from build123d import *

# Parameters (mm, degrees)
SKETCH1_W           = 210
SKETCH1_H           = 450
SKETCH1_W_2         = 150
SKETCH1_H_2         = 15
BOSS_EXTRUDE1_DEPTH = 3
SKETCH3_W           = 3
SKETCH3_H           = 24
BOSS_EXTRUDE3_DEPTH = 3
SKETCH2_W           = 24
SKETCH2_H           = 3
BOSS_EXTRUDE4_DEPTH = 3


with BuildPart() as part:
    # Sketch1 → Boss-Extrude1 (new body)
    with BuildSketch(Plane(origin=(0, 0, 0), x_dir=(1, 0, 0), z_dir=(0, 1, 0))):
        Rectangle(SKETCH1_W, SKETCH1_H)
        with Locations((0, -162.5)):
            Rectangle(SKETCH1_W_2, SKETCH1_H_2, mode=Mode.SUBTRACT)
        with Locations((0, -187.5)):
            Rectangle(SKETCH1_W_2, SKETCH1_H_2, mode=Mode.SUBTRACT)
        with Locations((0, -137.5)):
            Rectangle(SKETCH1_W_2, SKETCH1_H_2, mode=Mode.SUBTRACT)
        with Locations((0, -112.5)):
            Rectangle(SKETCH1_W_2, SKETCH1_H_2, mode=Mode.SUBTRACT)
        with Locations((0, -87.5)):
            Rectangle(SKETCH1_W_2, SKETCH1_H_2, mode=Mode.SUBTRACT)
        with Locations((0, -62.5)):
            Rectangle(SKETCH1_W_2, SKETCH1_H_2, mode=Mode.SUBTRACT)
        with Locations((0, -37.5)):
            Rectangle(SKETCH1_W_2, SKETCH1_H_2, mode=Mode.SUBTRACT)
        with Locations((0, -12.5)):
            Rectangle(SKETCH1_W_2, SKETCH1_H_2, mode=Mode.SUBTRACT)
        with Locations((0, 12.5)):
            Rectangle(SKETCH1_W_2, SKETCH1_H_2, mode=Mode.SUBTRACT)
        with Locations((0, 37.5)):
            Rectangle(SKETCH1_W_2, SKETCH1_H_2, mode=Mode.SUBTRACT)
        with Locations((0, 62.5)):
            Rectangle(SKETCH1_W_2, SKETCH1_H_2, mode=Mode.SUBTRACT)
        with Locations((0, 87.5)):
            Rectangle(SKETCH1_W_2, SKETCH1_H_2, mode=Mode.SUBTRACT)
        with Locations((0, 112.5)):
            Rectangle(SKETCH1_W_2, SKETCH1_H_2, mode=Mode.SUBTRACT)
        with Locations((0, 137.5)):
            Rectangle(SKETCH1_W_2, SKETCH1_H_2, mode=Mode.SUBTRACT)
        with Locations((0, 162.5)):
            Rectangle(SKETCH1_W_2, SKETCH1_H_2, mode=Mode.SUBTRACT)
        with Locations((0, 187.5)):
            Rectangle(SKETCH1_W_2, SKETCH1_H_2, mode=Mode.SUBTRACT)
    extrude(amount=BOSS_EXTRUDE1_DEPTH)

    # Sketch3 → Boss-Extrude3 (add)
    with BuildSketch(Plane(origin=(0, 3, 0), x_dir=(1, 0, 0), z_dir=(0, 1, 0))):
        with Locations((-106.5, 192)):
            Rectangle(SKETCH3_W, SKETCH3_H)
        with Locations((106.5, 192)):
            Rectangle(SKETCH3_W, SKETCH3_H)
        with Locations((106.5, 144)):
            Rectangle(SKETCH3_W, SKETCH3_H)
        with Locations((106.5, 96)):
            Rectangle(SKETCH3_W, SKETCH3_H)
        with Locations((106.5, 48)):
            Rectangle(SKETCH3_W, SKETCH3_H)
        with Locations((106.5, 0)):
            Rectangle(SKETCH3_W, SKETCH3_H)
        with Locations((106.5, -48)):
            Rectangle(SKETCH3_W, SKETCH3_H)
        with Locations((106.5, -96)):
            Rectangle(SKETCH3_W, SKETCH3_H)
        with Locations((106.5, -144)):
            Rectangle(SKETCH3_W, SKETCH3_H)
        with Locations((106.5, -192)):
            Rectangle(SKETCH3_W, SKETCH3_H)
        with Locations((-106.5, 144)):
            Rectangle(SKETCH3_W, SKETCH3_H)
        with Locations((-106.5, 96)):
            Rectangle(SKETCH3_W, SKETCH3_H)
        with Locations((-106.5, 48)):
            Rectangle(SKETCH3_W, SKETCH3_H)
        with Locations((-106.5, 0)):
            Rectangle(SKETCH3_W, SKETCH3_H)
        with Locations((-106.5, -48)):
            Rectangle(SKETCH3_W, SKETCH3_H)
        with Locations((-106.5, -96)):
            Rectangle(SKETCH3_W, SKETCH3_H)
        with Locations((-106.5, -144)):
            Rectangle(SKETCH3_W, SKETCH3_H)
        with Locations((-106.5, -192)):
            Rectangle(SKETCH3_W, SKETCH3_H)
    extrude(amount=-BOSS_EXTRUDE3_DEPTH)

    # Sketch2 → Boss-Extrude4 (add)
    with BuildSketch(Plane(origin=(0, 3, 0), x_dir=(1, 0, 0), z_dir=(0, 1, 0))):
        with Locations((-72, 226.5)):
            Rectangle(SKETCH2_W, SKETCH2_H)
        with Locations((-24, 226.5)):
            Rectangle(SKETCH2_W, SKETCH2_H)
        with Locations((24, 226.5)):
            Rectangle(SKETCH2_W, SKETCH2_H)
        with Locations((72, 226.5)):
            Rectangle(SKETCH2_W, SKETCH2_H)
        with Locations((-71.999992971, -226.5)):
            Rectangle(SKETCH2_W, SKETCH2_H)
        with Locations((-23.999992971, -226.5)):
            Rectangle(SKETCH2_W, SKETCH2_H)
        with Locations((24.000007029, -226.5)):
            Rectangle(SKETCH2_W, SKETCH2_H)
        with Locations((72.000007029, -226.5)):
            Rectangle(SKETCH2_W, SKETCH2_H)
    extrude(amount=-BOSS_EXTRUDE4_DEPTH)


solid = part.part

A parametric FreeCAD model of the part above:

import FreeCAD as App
import Part
import Sketcher
Q = App.Units.Quantity


def add_polygon(sketch, points):
    """Adds a closed chain of lines whose ends are joined by coincident constraints."""
    first, n = sketch.GeometryCount, len(points)
    for a, b in zip(points, points[1:] + points[:1]):
        sketch.addGeometry(Part.LineSegment(App.Vector(*a, 0), App.Vector(*b, 0)), False)
    for i in range(n):
        sketch.addConstraint(Sketcher.Constraint("Coincident", first + i, 2, first + (i + 1) % n, 1))

doc = App.newDocument("Part")
body = doc.addObject("PartDesign::Body", "Body")

# Sketch on XZ plane
sketch1 = body.newObject("Sketcher::SketchObject", "Sketch")
sketch1.AttachmentSupport = (doc.getObject("XZ_Plane"), [""])
sketch1.MapMode = "FlatFace"
add_polygon(sketch1, [(-105, -225), (-105, 225), (105, 225), (105, -225)])  # lines 0-3
add_polygon(sketch1, [(75, 195), (-75, 195), (-75, 180), (75, 180)])  # lines 4-7
add_polygon(sketch1, [(75, 170), (-75, 170), (-75, 155), (75, 155)])  # lines 8-11
add_polygon(sketch1, [(75, 145), (-75, 145), (-75, 130), (75, 130)])  # lines 12-15
add_polygon(sketch1, [(75, 120), (-75, 120), (-75, 105), (75, 105)])  # lines 16-19
add_polygon(sketch1, [(75, 95), (-75, 95), (-75, 80), (75, 80)])  # lines 20-23
add_polygon(sketch1, [(75, 70), (-75, 70), (-75, 55), (75, 55)])  # lines 24-27
add_polygon(sketch1, [(75, 45), (-75, 45), (-75, 30), (75, 30)])  # lines 28-31
add_polygon(sketch1, [(75, 20), (-75, 20), (-75, 5), (75, 5)])  # lines 32-35
add_polygon(sketch1, [(75, -5), (-75, -5), (-75, -20), (75, -20)])  # lines 36-39
add_polygon(sketch1, [(75, -30), (-75, -30), (-75, -45), (75, -45)])  # lines 40-43
add_polygon(sketch1, [(75, -55), (-75, -55), (-75, -70), (75, -70)])  # lines 44-47
add_polygon(sketch1, [(75, -80), (-75, -80), (-75, -95), (75, -95)])  # lines 48-51
add_polygon(sketch1, [(75, -105), (-75, -105), (-75, -120), (75, -120)])  # lines 52-55
add_polygon(sketch1, [(75, -130), (-75, -130), (-75, -145), (75, -145)])  # lines 56-59
add_polygon(sketch1, [(75, -155), (-75, -155), (-75, -170), (75, -170)])  # lines 60-63
add_polygon(sketch1, [(75, -180), (-75, -180), (-75, -195), (75, -195)])  # lines 64-67
sketch1.addConstraint(Sketcher.Constraint("Vertical", 0))
sketch1.addConstraint(Sketcher.Constraint("Horizontal", 1))
sketch1.addConstraint(Sketcher.Constraint("Vertical", 2))
sketch1.addConstraint(Sketcher.Constraint("Horizontal", 3))
sketch1.addConstraint(Sketcher.Constraint("Horizontal", 4))
sketch1.addConstraint(Sketcher.Constraint("Vertical", 5))
sketch1.addConstraint(Sketcher.Constraint("Horizontal", 6))
sketch1.addConstraint(Sketcher.Constraint("Vertical", 7))
sketch1.addConstraint(Sketcher.Constraint("Horizontal", 8))
sketch1.addConstraint(Sketcher.Constraint("Vertical", 9))
sketch1.addConstraint(Sketcher.Constraint("Horizontal", 10))
sketch1.addConstraint(Sketcher.Constraint("Vertical", 11))
sketch1.addConstraint(Sketcher.Constraint("Horizontal", 12))
sketch1.addConstraint(Sketcher.Constraint("Vertical", 13))
sketch1.addConstraint(Sketcher.Constraint("Horizontal", 14))
sketch1.addConstraint(Sketcher.Constraint("Vertical", 15))
sketch1.addConstraint(Sketcher.Constraint("Horizontal", 16))
sketch1.addConstraint(Sketcher.Constraint("Vertical", 17))
sketch1.addConstraint(Sketcher.Constraint("Horizontal", 18))
sketch1.addConstraint(Sketcher.Constraint("Vertical", 19))
sketch1.addConstraint(Sketcher.Constraint("Horizontal", 20))
sketch1.addConstraint(Sketcher.Constraint("Vertical", 21))
sketch1.addConstraint(Sketcher.Constraint("Horizontal", 22))
sketch1.addConstraint(Sketcher.Constraint("Vertical", 23))
sketch1.addConstraint(Sketcher.Constraint("Horizontal", 24))
sketch1.addConstraint(Sketcher.Constraint("Vertical", 25))
sketch1.addConstraint(Sketcher.Constraint("Horizontal", 26))
sketch1.addConstraint(Sketcher.Constraint("Vertical", 27))
sketch1.addConstraint(Sketcher.Constraint("Horizontal", 28))
sketch1.addConstraint(Sketcher.Constraint("Vertical", 29))
sketch1.addConstraint(Sketcher.Constraint("Horizontal", 30))
sketch1.addConstraint(Sketcher.Constraint("Vertical", 31))
sketch1.addConstraint(Sketcher.Constraint("Horizontal", 32))
sketch1.addConstraint(Sketcher.Constraint("Vertical", 33))
sketch1.addConstraint(Sketcher.Constraint("Horizontal", 34))
sketch1.addConstraint(Sketcher.Constraint("Vertical", 35))
sketch1.addConstraint(Sketcher.Constraint("Horizontal", 36))
sketch1.addConstraint(Sketcher.Constraint("Vertical", 37))
sketch1.addConstraint(Sketcher.Constraint("Horizontal", 38))
sketch1.addConstraint(Sketcher.Constraint("Vertical", 39))
sketch1.addConstraint(Sketcher.Constraint("Horizontal", 40))
sketch1.addConstraint(Sketcher.Constraint("Vertical", 41))
sketch1.addConstraint(Sketcher.Constraint("Horizontal", 42))
sketch1.addConstraint(Sketcher.Constraint("Vertical", 43))
sketch1.addConstraint(Sketcher.Constraint("Horizontal", 44))
sketch1.addConstraint(Sketcher.Constraint("Vertical", 45))
sketch1.addConstraint(Sketcher.Constraint("Horizontal", 46))
sketch1.addConstraint(Sketcher.Constraint("Vertical", 47))
sketch1.addConstraint(Sketcher.Constraint("Horizontal", 48))
sketch1.addConstraint(Sketcher.Constraint("Vertical", 49))
sketch1.addConstraint(Sketcher.Constraint("Horizontal", 50))
sketch1.addConstraint(Sketcher.Constraint("Vertical", 51))
sketch1.addConstraint(Sketcher.Constraint("Horizontal", 52))
sketch1.addConstraint(Sketcher.Constraint("Vertical", 53))
sketch1.addConstraint(Sketcher.Constraint("Horizontal", 54))
sketch1.addConstraint(Sketcher.Constraint("Vertical", 55))
sketch1.addConstraint(Sketcher.Constraint("Horizontal", 56))
sketch1.addConstraint(Sketcher.Constraint("Vertical", 57))
sketch1.addConstraint(Sketcher.Constraint("Horizontal", 58))
sketch1.addConstraint(Sketcher.Constraint("Vertical", 59))
sketch1.addConstraint(Sketcher.Constraint("Horizontal", 60))
sketch1.addConstraint(Sketcher.Constraint("Vertical", 61))
sketch1.addConstraint(Sketcher.Constraint("Horizontal", 62))
sketch1.addConstraint(Sketcher.Constraint("Vertical", 63))
sketch1.addConstraint(Sketcher.Constraint("Horizontal", 64))
sketch1.addConstraint(Sketcher.Constraint("Vertical", 65))
sketch1.addConstraint(Sketcher.Constraint("Horizontal", 66))
sketch1.addConstraint(Sketcher.Constraint("Vertical", 67))
sketch1.addConstraint(Sketcher.Constraint("Symmetric", 0, 2, 2, 2, -1, 1))
sketch1.addConstraint(Sketcher.Constraint("Symmetric", 34, 2, 36, 2, -1, 1))
sketch1.addConstraint(Sketcher.Constraint("Symmetric", 32, 2, 38, 2, -1, 1))
sketch1.addConstraint(Sketcher.Constraint("Symmetric", 30, 2, 40, 2, -1, 1))
sketch1.addConstraint(Sketcher.Constraint("Symmetric", 28, 2, 42, 2, -1, 1))
sketch1.addConstraint(Sketcher.Constraint("Symmetric", 26, 2, 44, 2, -1, 1))
sketch1.addConstraint(Sketcher.Constraint("Symmetric", 24, 2, 46, 2, -1, 1))
sketch1.addConstraint(Sketcher.Constraint("Symmetric", 22, 2, 48, 2, -1, 1))
sketch1.addConstraint(Sketcher.Constraint("Symmetric", 20, 2, 50, 2, -1, 1))
sketch1.addConstraint(Sketcher.Constraint("Symmetric", 18, 2, 52, 2, -1, 1))
sketch1.addConstraint(Sketcher.Constraint("Symmetric", 16, 2, 54, 2, -1, 1))
sketch1.addConstraint(Sketcher.Constraint("Symmetric", 14, 2, 56, 2, -1, 1))
sketch1.addConstraint(Sketcher.Constraint("Symmetric", 12, 2, 58, 2, -1, 1))
sketch1.addConstraint(Sketcher.Constraint("Symmetric", 10, 2, 60, 2, -1, 1))
sketch1.addConstraint(Sketcher.Constraint("Symmetric", 8, 2, 62, 2, -1, 1))
sketch1.addConstraint(Sketcher.Constraint("Symmetric", 6, 2, 64, 2, -1, 1))
sketch1.addConstraint(Sketcher.Constraint("Symmetric", 4, 2, 66, 2, -1, 1))
sketch1.addConstraint(Sketcher.Constraint("Vertical", 5, 2, 8, 2))
sketch1.addConstraint(Sketcher.Constraint("Vertical", 7, 2, 10, 2))
sketch1.addConstraint(Sketcher.Constraint("Vertical", 9, 2, 12, 2))
sketch1.addConstraint(Sketcher.Constraint("Vertical", 11, 2, 14, 2))
sketch1.addConstraint(Sketcher.Constraint("Vertical", 13, 2, 16, 2))
sketch1.addConstraint(Sketcher.Constraint("Vertical", 15, 2, 18, 2))
sketch1.addConstraint(Sketcher.Constraint("Vertical", 17, 2, 20, 2))
sketch1.addConstraint(Sketcher.Constraint("Vertical", 19, 2, 22, 2))
sketch1.addConstraint(Sketcher.Constraint("Vertical", 21, 2, 24, 2))
sketch1.addConstraint(Sketcher.Constraint("Vertical", 23, 2, 26, 2))
sketch1.addConstraint(Sketcher.Constraint("Vertical", 25, 2, 28, 2))
sketch1.addConstraint(Sketcher.Constraint("Vertical", 27, 2, 30, 2))
sketch1.addConstraint(Sketcher.Constraint("Vertical", 29, 2, 32, 2))
sketch1.addConstraint(Sketcher.Constraint("Vertical", 31, 2, 34, 2))
sketch1.addConstraint(Sketcher.Constraint("Vertical", 33, 2, 36, 2))
sketch1.addConstraint(Sketcher.Constraint("Equal", 7, 9))
sketch1.addConstraint(Sketcher.Constraint("Equal", 11, 13))
sketch1.addConstraint(Sketcher.Constraint("Equal", 15, 17))
sketch1.addConstraint(Sketcher.Constraint("Equal", 19, 21))
sketch1.addConstraint(Sketcher.Constraint("Equal", 23, 25))
sketch1.addConstraint(Sketcher.Constraint("Equal", 27, 29))
sketch1.addConstraint(Sketcher.Constraint("Equal", 31, 33))
sketch1.addConstraint(Sketcher.Constraint("DistanceX", 1, 1, 1, 2, Q("210 mm")))
sketch1.addConstraint(Sketcher.Constraint("DistanceX", 4, 2, 4, 1, Q("150 mm")))
sketch1.addConstraint(Sketcher.Constraint("DistanceY", 0, 1, 0, 2, Q("450 mm")))
sketch1.addConstraint(Sketcher.Constraint("DistanceY", 5, 2, 5, 1, Q("15 mm")))
sketch1.addConstraint(Sketcher.Constraint("DistanceY", -1, 1, 4, 2, Q("195 mm")))
sketch1.addConstraint(Sketcher.Constraint("DistanceY", -1, 1, 8, 2, Q("170 mm")))
sketch1.addConstraint(Sketcher.Constraint("DistanceY", -1, 1, 12, 2, Q("145 mm")))
sketch1.addConstraint(Sketcher.Constraint("DistanceY", -1, 1, 16, 2, Q("120 mm")))
sketch1.addConstraint(Sketcher.Constraint("DistanceY", -1, 1, 20, 2, Q("95 mm")))
sketch1.addConstraint(Sketcher.Constraint("DistanceY", -1, 1, 24, 2, Q("70 mm")))
sketch1.addConstraint(Sketcher.Constraint("DistanceY", -1, 1, 28, 2, Q("45 mm")))
sketch1.addConstraint(Sketcher.Constraint("DistanceY", -1, 1, 32, 2, Q("20 mm")))
pad1 = body.newObject("PartDesign::Pad", "Pad")
pad1.Profile = sketch1
pad1.Length = 3
pad1.Reversed = True

# Sketch on XZ plane
sketch2 = body.newObject("Sketcher::SketchObject", "Sketch001")
sketch2.AttachmentSupport = (doc.getObject("XZ_Plane"), [""])
sketch2.MapMode = "FlatFace"
sketch2.AttachmentOffset = App.Placement(App.Vector(0, 0, -3), App.Rotation())
add_polygon(sketch2, [(-108, -204), (-108, -180), (-105, -180), (-105, -204)])  # lines 0-3
add_polygon(sketch2, [(105, -204), (105, -180), (108, -180), (108, -204)])  # lines 4-7
add_polygon(sketch2, [(105, -156), (105, -132), (108, -132), (108, -156)])  # lines 8-11
add_polygon(sketch2, [(105, -108), (105, -84), (108, -84), (108, -108)])  # lines 12-15
add_polygon(sketch2, [(105, -60), (105, -36), (108, -36), (108, -60)])  # lines 16-19
add_polygon(sketch2, [(105, -12), (105, 12), (108, 12), (108, -12)])  # lines 20-23
add_polygon(sketch2, [(105, 36), (105, 60), (108, 60), (108, 36)])  # lines 24-27
add_polygon(sketch2, [(105, 84), (105, 108), (108, 108), (108, 84)])  # lines 28-31
add_polygon(sketch2, [(105, 132), (105, 156), (108, 156), (108, 132)])  # lines 32-35
add_polygon(sketch2, [(105, 180), (105, 204), (108, 204), (108, 180)])  # lines 36-39
add_polygon(sketch2, [(-108, -156), (-108, -132), (-105, -132), (-105, -156)])  # lines 40-43
add_polygon(sketch2, [(-108, -108), (-108, -84), (-105, -84), (-105, -108)])  # lines 44-47
add_polygon(sketch2, [(-108, -60), (-108, -36), (-105, -36), (-105, -60)])  # lines 48-51
add_polygon(sketch2, [(-108, -12), (-108, 12), (-105, 12), (-105, -12)])  # lines 52-55
add_polygon(sketch2, [(-108, 36), (-108, 60), (-105, 60), (-105, 36)])  # lines 56-59
add_polygon(sketch2, [(-108, 84), (-108, 108), (-105, 108), (-105, 84)])  # lines 60-63
add_polygon(sketch2, [(-108, 132), (-108, 156), (-105, 156), (-105, 132)])  # lines 64-67
add_polygon(sketch2, [(-108, 180), (-108, 204), (-105, 204), (-105, 180)])  # lines 68-71
sketch2.addConstraint(Sketcher.Constraint("Vertical", 0))
sketch2.addConstraint(Sketcher.Constraint("Horizontal", 1))
sketch2.addConstraint(Sketcher.Constraint("Vertical", 2))
sketch2.addConstraint(Sketcher.Constraint("Horizontal", 3))
sketch2.addConstraint(Sketcher.Constraint("Vertical", 4))
sketch2.addConstraint(Sketcher.Constraint("Horizontal", 5))
sketch2.addConstraint(Sketcher.Constraint("Vertical", 6))
sketch2.addConstraint(Sketcher.Constraint("Horizontal", 7))
sketch2.addConstraint(Sketcher.Constraint("Vertical", 8))
sketch2.addConstraint(Sketcher.Constraint("Horizontal", 9))
sketch2.addConstraint(Sketcher.Constraint("Vertical", 10))
sketch2.addConstraint(Sketcher.Constraint("Horizontal", 11))
sketch2.addConstraint(Sketcher.Constraint("Vertical", 12))
sketch2.addConstraint(Sketcher.Constraint("Horizontal", 13))
sketch2.addConstraint(Sketcher.Constraint("Vertical", 14))
sketch2.addConstraint(Sketcher.Constraint("Horizontal", 15))
sketch2.addConstraint(Sketcher.Constraint("Vertical", 16))
sketch2.addConstraint(Sketcher.Constraint("Horizontal", 17))
sketch2.addConstraint(Sketcher.Constraint("Vertical", 18))
sketch2.addConstraint(Sketcher.Constraint("Horizontal", 19))
sketch2.addConstraint(Sketcher.Constraint("Vertical", 20))
sketch2.addConstraint(Sketcher.Constraint("Horizontal", 21))
sketch2.addConstraint(Sketcher.Constraint("Vertical", 22))
sketch2.addConstraint(Sketcher.Constraint("Horizontal", 23))
sketch2.addConstraint(Sketcher.Constraint("Vertical", 24))
sketch2.addConstraint(Sketcher.Constraint("Horizontal", 25))
sketch2.addConstraint(Sketcher.Constraint("Vertical", 26))
sketch2.addConstraint(Sketcher.Constraint("Horizontal", 27))
sketch2.addConstraint(Sketcher.Constraint("Vertical", 28))
sketch2.addConstraint(Sketcher.Constraint("Horizontal", 29))
sketch2.addConstraint(Sketcher.Constraint("Vertical", 30))
sketch2.addConstraint(Sketcher.Constraint("Horizontal", 31))
sketch2.addConstraint(Sketcher.Constraint("Vertical", 32))
sketch2.addConstraint(Sketcher.Constraint("Horizontal", 33))
sketch2.addConstraint(Sketcher.Constraint("Vertical", 34))
sketch2.addConstraint(Sketcher.Constraint("Horizontal", 35))
sketch2.addConstraint(Sketcher.Constraint("Vertical", 36))
sketch2.addConstraint(Sketcher.Constraint("Horizontal", 37))
sketch2.addConstraint(Sketcher.Constraint("Vertical", 38))
sketch2.addConstraint(Sketcher.Constraint("Horizontal", 39))
sketch2.addConstraint(Sketcher.Constraint("Vertical", 40))
sketch2.addConstraint(Sketcher.Constraint("Horizontal", 41))
sketch2.addConstraint(Sketcher.Constraint("Vertical", 42))
sketch2.addConstraint(Sketcher.Constraint("Horizontal", 43))
sketch2.addConstraint(Sketcher.Constraint("Vertical", 44))
sketch2.addConstraint(Sketcher.Constraint("Horizontal", 45))
sketch2.addConstraint(Sketcher.Constraint("Vertical", 46))
sketch2.addConstraint(Sketcher.Constraint("Horizontal", 47))
sketch2.addConstraint(Sketcher.Constraint("Vertical", 48))
sketch2.addConstraint(Sketcher.Constraint("Horizontal", 49))
sketch2.addConstraint(Sketcher.Constraint("Vertical", 50))
sketch2.addConstraint(Sketcher.Constraint("Horizontal", 51))
sketch2.addConstraint(Sketcher.Constraint("Vertical", 52))
sketch2.addConstraint(Sketcher.Constraint("Horizontal", 53))
sketch2.addConstraint(Sketcher.Constraint("Vertical", 54))
sketch2.addConstraint(Sketcher.Constraint("Horizontal", 55))
sketch2.addConstraint(Sketcher.Constraint("Vertical", 56))
sketch2.addConstraint(Sketcher.Constraint("Horizontal", 57))
sketch2.addConstraint(Sketcher.Constraint("Vertical", 58))
sketch2.addConstraint(Sketcher.Constraint("Horizontal", 59))
sketch2.addConstraint(Sketcher.Constraint("Vertical", 60))
sketch2.addConstraint(Sketcher.Constraint("Horizontal", 61))
sketch2.addConstraint(Sketcher.Constraint("Vertical", 62))
sketch2.addConstraint(Sketcher.Constraint("Horizontal", 63))
sketch2.addConstraint(Sketcher.Constraint("Vertical", 64))
sketch2.addConstraint(Sketcher.Constraint("Horizontal", 65))
sketch2.addConstraint(Sketcher.Constraint("Vertical", 66))
sketch2.addConstraint(Sketcher.Constraint("Horizontal", 67))
sketch2.addConstraint(Sketcher.Constraint("Vertical", 68))
sketch2.addConstraint(Sketcher.Constraint("Horizontal", 69))
sketch2.addConstraint(Sketcher.Constraint("Vertical", 70))
sketch2.addConstraint(Sketcher.Constraint("Horizontal", 71))
sketch2.addConstraint(Sketcher.Constraint("Symmetric", 2, 2, 36, 2, -1, 1))
sketch2.addConstraint(Sketcher.Constraint("Symmetric", 0, 2, 38, 2, -1, 1))
sketch2.addConstraint(Sketcher.Constraint("Symmetric", 34, 2, 40, 2, -1, 1))
sketch2.addConstraint(Sketcher.Constraint("Symmetric", 32, 2, 42, 2, -1, 1))
sketch2.addConstraint(Sketcher.Constraint("Symmetric", 30, 2, 44, 2, -1, 1))
sketch2.addConstraint(Sketcher.Constraint("Symmetric", 28, 2, 46, 2, -1, 1))
sketch2.addConstraint(Sketcher.Constraint("Symmetric", 26, 2, 48, 2, -1, 1))
sketch2.addConstraint(Sketcher.Constraint("Symmetric", 24, 2, 50, 2, -1, 1))
sketch2.addConstraint(Sketcher.Constraint("Symmetric", 22, 2, 52, 2, -1, 1))
sketch2.addConstraint(Sketcher.Constraint("Symmetric", 20, 2, 54, 2, -1, 1))
sketch2.addConstraint(Sketcher.Constraint("Symmetric", 18, 2, 56, 2, -1, 1))
sketch2.addConstraint(Sketcher.Constraint("Symmetric", 16, 2, 58, 2, -1, 1))
sketch2.addConstraint(Sketcher.Constraint("Symmetric", 14, 2, 60, 2, -1, 1))
sketch2.addConstraint(Sketcher.Constraint("Symmetric", 12, 2, 62, 2, -1, 1))
sketch2.addConstraint(Sketcher.Constraint("Symmetric", 10, 2, 64, 2, -1, 1))
sketch2.addConstraint(Sketcher.Constraint("Symmetric", 8, 2, 66, 2, -1, 1))
sketch2.addConstraint(Sketcher.Constraint("Symmetric", 6, 2, 68, 2, -1, 1))
sketch2.addConstraint(Sketcher.Constraint("Symmetric", 4, 2, 70, 2, -1, 1))
sketch2.addConstraint(Sketcher.Constraint("Symmetric", 1, 2, 4, 2, -2))
sketch2.addConstraint(Sketcher.Constraint("Symmetric", 3, 2, 6, 2, -2))
sketch2.addConstraint(Sketcher.Constraint("Symmetric", 9, 2, 40, 2, -2))
sketch2.addConstraint(Sketcher.Constraint("Symmetric", 11, 2, 42, 2, -2))
sketch2.addConstraint(Sketcher.Constraint("Symmetric", 13, 2, 44, 2, -2))
sketch2.addConstraint(Sketcher.Constraint("Symmetric", 15, 2, 46, 2, -2))
sketch2.addConstraint(Sketcher.Constraint("Symmetric", 17, 2, 48, 2, -2))
sketch2.addConstraint(Sketcher.Constraint("Symmetric", 19, 2, 50, 2, -2))
sketch2.addConstraint(Sketcher.Constraint("Horizontal", 21, 2, 52, 2))
sketch2.addConstraint(Sketcher.Constraint("Vertical", 7, 2, 8, 2))
sketch2.addConstraint(Sketcher.Constraint("Vertical", 6, 2, 9, 2))
sketch2.addConstraint(Sketcher.Constraint("Vertical", 11, 2, 12, 2))
sketch2.addConstraint(Sketcher.Constraint("Vertical", 10, 2, 13, 2))
sketch2.addConstraint(Sketcher.Constraint("Vertical", 15, 2, 16, 2))
sketch2.addConstraint(Sketcher.Constraint("Vertical", 14, 2, 17, 2))
sketch2.addConstraint(Sketcher.Constraint("Vertical", 19, 2, 20, 2))
sketch2.addConstraint(Sketcher.Constraint("Vertical", 18, 2, 21, 2))
sketch2.addConstraint(Sketcher.Constraint("Equal", 6, 8))
sketch2.addConstraint(Sketcher.Constraint("Equal", 10, 12))
sketch2.addConstraint(Sketcher.Constraint("Equal", 14, 16))
sketch2.addConstraint(Sketcher.Constraint("Equal", 18, 20))
sketch2.addConstraint(Sketcher.Constraint("DistanceX", 1, 1, 1, 2, Q("3 mm")))
sketch2.addConstraint(Sketcher.Constraint("DistanceY", 0, 1, 0, 2, Q("24 mm")))
sketch2.addConstraint(Sketcher.Constraint("DistanceX", 0, 2, -1, 1, Q("108 mm")))
sketch2.addConstraint(Sketcher.Constraint("DistanceY", 0, 2, -1, 1, Q("180 mm")))
sketch2.addConstraint(Sketcher.Constraint("DistanceY", 8, 2, -1, 1, Q("132 mm")))
sketch2.addConstraint(Sketcher.Constraint("DistanceY", 12, 2, -1, 1, Q("84 mm")))
sketch2.addConstraint(Sketcher.Constraint("DistanceY", 16, 2, -1, 1, Q("36 mm")))
pad2 = body.newObject("PartDesign::Pad", "Pad001")
pad2.Profile = sketch2
pad2.Length = 3

# Sketch on XZ plane
sketch3 = body.newObject("Sketcher::SketchObject", "Sketch002")
sketch3.AttachmentSupport = (doc.getObject("XZ_Plane"), [""])
sketch3.MapMode = "FlatFace"
sketch3.AttachmentOffset = App.Placement(App.Vector(0, 0, -3), App.Rotation())
add_polygon(sketch3, [(-84, -228), (-84, -225), (-60, -225), (-60, -228)])  # lines 0-3
add_polygon(sketch3, [(-36, -228), (-36, -225), (-12, -225), (-12, -228)])  # lines 4-7
add_polygon(sketch3, [(12, -228), (12, -225), (36, -225), (36, -228)])  # lines 8-11
add_polygon(sketch3, [(60, -228), (60, -225), (84, -225), (84, -228)])  # lines 12-15
add_polygon(sketch3, [(-83.999993, 225), (-83.999993, 228), (-59.999993, 228), (-59.999993, 225)])  # lines 16-19
add_polygon(sketch3, [(-35.999993, 225), (-35.999993, 228), (-11.999993, 228), (-11.999993, 225)])  # lines 20-23
add_polygon(sketch3, [(12.000007, 225), (12.000007, 228), (36.000007, 228), (36.000007, 225)])  # lines 24-27
add_polygon(sketch3, [(60.000007, 225), (60.000007, 228), (84.000007, 228), (84.000007, 225)])  # lines 28-31
sketch3.addConstraint(Sketcher.Constraint("Vertical", 0))
sketch3.addConstraint(Sketcher.Constraint("Horizontal", 1))
sketch3.addConstraint(Sketcher.Constraint("Vertical", 2))
sketch3.addConstraint(Sketcher.Constraint("Horizontal", 3))
sketch3.addConstraint(Sketcher.Constraint("Vertical", 4))
sketch3.addConstraint(Sketcher.Constraint("Horizontal", 5))
sketch3.addConstraint(Sketcher.Constraint("Vertical", 6))
sketch3.addConstraint(Sketcher.Constraint("Horizontal", 7))
sketch3.addConstraint(Sketcher.Constraint("Vertical", 8))
sketch3.addConstraint(Sketcher.Constraint("Horizontal", 9))
sketch3.addConstraint(Sketcher.Constraint("Vertical", 10))
sketch3.addConstraint(Sketcher.Constraint("Horizontal", 11))
sketch3.addConstraint(Sketcher.Constraint("Vertical", 12))
sketch3.addConstraint(Sketcher.Constraint("Horizontal", 13))
sketch3.addConstraint(Sketcher.Constraint("Vertical", 14))
sketch3.addConstraint(Sketcher.Constraint("Horizontal", 15))
sketch3.addConstraint(Sketcher.Constraint("Vertical", 16))
sketch3.addConstraint(Sketcher.Constraint("Horizontal", 17))
sketch3.addConstraint(Sketcher.Constraint("Vertical", 18))
sketch3.addConstraint(Sketcher.Constraint("Horizontal", 19))
sketch3.addConstraint(Sketcher.Constraint("Vertical", 20))
sketch3.addConstraint(Sketcher.Constraint("Horizontal", 21))
sketch3.addConstraint(Sketcher.Constraint("Vertical", 22))
sketch3.addConstraint(Sketcher.Constraint("Horizontal", 23))
sketch3.addConstraint(Sketcher.Constraint("Vertical", 24))
sketch3.addConstraint(Sketcher.Constraint("Horizontal", 25))
sketch3.addConstraint(Sketcher.Constraint("Vertical", 26))
sketch3.addConstraint(Sketcher.Constraint("Horizontal", 27))
sketch3.addConstraint(Sketcher.Constraint("Vertical", 28))
sketch3.addConstraint(Sketcher.Constraint("Horizontal", 29))
sketch3.addConstraint(Sketcher.Constraint("Vertical", 30))
sketch3.addConstraint(Sketcher.Constraint("Horizontal", 31))
sketch3.addConstraint(Sketcher.Constraint("Symmetric", 14, 2, 16, 2, -1, 1))
sketch3.addConstraint(Sketcher.Constraint("Symmetric", 12, 2, 18, 2, -1, 1))
sketch3.addConstraint(Sketcher.Constraint("Symmetric", 10, 2, 20, 2, -1, 1))
sketch3.addConstraint(Sketcher.Constraint("Symmetric", 8, 2, 22, 2, -1, 1))
sketch3.addConstraint(Sketcher.Constraint("Symmetric", 6, 2, 24, 2, -1, 1))
sketch3.addConstraint(Sketcher.Constraint("Symmetric", 4, 2, 26, 2, -1, 1))
sketch3.addConstraint(Sketcher.Constraint("Symmetric", 2, 2, 28, 2, -1, 1))
sketch3.addConstraint(Sketcher.Constraint("Symmetric", 0, 2, 30, 2, -1, 1))
sketch3.addConstraint(Sketcher.Constraint("Symmetric", 5, 2, 8, 2, -2))
sketch3.addConstraint(Sketcher.Constraint("Symmetric", 7, 2, 10, 2, -2))
sketch3.addConstraint(Sketcher.Constraint("Symmetric", 1, 2, 12, 2, -2))
sketch3.addConstraint(Sketcher.Constraint("Symmetric", 3, 2, 14, 2, -2))
sketch3.addConstraint(Sketcher.Constraint("Horizontal", 1, 2, 4, 2))
sketch3.addConstraint(Sketcher.Constraint("Horizontal", 3, 2, 6, 2))
sketch3.addConstraint(Sketcher.Constraint("Equal", 3, 5))
sketch3.addConstraint(Sketcher.Constraint("DistanceX", 1, 1, 1, 2, Q("24 mm")))
sketch3.addConstraint(Sketcher.Constraint("DistanceY", 0, 1, 0, 2, Q("3 mm")))
sketch3.addConstraint(Sketcher.Constraint("DistanceX", 0, 2, -1, 1, Q("84 mm")))
sketch3.addConstraint(Sketcher.Constraint("DistanceY", 0, 2, -1, 1, Q("225 mm")))
sketch3.addConstraint(Sketcher.Constraint("DistanceX", 4, 2, -1, 1, Q("36 mm")))
pad3 = body.newObject("PartDesign::Pad", "Pad002")
pad3.Profile = sketch3
pad3.Length = 3

doc.recompute()
